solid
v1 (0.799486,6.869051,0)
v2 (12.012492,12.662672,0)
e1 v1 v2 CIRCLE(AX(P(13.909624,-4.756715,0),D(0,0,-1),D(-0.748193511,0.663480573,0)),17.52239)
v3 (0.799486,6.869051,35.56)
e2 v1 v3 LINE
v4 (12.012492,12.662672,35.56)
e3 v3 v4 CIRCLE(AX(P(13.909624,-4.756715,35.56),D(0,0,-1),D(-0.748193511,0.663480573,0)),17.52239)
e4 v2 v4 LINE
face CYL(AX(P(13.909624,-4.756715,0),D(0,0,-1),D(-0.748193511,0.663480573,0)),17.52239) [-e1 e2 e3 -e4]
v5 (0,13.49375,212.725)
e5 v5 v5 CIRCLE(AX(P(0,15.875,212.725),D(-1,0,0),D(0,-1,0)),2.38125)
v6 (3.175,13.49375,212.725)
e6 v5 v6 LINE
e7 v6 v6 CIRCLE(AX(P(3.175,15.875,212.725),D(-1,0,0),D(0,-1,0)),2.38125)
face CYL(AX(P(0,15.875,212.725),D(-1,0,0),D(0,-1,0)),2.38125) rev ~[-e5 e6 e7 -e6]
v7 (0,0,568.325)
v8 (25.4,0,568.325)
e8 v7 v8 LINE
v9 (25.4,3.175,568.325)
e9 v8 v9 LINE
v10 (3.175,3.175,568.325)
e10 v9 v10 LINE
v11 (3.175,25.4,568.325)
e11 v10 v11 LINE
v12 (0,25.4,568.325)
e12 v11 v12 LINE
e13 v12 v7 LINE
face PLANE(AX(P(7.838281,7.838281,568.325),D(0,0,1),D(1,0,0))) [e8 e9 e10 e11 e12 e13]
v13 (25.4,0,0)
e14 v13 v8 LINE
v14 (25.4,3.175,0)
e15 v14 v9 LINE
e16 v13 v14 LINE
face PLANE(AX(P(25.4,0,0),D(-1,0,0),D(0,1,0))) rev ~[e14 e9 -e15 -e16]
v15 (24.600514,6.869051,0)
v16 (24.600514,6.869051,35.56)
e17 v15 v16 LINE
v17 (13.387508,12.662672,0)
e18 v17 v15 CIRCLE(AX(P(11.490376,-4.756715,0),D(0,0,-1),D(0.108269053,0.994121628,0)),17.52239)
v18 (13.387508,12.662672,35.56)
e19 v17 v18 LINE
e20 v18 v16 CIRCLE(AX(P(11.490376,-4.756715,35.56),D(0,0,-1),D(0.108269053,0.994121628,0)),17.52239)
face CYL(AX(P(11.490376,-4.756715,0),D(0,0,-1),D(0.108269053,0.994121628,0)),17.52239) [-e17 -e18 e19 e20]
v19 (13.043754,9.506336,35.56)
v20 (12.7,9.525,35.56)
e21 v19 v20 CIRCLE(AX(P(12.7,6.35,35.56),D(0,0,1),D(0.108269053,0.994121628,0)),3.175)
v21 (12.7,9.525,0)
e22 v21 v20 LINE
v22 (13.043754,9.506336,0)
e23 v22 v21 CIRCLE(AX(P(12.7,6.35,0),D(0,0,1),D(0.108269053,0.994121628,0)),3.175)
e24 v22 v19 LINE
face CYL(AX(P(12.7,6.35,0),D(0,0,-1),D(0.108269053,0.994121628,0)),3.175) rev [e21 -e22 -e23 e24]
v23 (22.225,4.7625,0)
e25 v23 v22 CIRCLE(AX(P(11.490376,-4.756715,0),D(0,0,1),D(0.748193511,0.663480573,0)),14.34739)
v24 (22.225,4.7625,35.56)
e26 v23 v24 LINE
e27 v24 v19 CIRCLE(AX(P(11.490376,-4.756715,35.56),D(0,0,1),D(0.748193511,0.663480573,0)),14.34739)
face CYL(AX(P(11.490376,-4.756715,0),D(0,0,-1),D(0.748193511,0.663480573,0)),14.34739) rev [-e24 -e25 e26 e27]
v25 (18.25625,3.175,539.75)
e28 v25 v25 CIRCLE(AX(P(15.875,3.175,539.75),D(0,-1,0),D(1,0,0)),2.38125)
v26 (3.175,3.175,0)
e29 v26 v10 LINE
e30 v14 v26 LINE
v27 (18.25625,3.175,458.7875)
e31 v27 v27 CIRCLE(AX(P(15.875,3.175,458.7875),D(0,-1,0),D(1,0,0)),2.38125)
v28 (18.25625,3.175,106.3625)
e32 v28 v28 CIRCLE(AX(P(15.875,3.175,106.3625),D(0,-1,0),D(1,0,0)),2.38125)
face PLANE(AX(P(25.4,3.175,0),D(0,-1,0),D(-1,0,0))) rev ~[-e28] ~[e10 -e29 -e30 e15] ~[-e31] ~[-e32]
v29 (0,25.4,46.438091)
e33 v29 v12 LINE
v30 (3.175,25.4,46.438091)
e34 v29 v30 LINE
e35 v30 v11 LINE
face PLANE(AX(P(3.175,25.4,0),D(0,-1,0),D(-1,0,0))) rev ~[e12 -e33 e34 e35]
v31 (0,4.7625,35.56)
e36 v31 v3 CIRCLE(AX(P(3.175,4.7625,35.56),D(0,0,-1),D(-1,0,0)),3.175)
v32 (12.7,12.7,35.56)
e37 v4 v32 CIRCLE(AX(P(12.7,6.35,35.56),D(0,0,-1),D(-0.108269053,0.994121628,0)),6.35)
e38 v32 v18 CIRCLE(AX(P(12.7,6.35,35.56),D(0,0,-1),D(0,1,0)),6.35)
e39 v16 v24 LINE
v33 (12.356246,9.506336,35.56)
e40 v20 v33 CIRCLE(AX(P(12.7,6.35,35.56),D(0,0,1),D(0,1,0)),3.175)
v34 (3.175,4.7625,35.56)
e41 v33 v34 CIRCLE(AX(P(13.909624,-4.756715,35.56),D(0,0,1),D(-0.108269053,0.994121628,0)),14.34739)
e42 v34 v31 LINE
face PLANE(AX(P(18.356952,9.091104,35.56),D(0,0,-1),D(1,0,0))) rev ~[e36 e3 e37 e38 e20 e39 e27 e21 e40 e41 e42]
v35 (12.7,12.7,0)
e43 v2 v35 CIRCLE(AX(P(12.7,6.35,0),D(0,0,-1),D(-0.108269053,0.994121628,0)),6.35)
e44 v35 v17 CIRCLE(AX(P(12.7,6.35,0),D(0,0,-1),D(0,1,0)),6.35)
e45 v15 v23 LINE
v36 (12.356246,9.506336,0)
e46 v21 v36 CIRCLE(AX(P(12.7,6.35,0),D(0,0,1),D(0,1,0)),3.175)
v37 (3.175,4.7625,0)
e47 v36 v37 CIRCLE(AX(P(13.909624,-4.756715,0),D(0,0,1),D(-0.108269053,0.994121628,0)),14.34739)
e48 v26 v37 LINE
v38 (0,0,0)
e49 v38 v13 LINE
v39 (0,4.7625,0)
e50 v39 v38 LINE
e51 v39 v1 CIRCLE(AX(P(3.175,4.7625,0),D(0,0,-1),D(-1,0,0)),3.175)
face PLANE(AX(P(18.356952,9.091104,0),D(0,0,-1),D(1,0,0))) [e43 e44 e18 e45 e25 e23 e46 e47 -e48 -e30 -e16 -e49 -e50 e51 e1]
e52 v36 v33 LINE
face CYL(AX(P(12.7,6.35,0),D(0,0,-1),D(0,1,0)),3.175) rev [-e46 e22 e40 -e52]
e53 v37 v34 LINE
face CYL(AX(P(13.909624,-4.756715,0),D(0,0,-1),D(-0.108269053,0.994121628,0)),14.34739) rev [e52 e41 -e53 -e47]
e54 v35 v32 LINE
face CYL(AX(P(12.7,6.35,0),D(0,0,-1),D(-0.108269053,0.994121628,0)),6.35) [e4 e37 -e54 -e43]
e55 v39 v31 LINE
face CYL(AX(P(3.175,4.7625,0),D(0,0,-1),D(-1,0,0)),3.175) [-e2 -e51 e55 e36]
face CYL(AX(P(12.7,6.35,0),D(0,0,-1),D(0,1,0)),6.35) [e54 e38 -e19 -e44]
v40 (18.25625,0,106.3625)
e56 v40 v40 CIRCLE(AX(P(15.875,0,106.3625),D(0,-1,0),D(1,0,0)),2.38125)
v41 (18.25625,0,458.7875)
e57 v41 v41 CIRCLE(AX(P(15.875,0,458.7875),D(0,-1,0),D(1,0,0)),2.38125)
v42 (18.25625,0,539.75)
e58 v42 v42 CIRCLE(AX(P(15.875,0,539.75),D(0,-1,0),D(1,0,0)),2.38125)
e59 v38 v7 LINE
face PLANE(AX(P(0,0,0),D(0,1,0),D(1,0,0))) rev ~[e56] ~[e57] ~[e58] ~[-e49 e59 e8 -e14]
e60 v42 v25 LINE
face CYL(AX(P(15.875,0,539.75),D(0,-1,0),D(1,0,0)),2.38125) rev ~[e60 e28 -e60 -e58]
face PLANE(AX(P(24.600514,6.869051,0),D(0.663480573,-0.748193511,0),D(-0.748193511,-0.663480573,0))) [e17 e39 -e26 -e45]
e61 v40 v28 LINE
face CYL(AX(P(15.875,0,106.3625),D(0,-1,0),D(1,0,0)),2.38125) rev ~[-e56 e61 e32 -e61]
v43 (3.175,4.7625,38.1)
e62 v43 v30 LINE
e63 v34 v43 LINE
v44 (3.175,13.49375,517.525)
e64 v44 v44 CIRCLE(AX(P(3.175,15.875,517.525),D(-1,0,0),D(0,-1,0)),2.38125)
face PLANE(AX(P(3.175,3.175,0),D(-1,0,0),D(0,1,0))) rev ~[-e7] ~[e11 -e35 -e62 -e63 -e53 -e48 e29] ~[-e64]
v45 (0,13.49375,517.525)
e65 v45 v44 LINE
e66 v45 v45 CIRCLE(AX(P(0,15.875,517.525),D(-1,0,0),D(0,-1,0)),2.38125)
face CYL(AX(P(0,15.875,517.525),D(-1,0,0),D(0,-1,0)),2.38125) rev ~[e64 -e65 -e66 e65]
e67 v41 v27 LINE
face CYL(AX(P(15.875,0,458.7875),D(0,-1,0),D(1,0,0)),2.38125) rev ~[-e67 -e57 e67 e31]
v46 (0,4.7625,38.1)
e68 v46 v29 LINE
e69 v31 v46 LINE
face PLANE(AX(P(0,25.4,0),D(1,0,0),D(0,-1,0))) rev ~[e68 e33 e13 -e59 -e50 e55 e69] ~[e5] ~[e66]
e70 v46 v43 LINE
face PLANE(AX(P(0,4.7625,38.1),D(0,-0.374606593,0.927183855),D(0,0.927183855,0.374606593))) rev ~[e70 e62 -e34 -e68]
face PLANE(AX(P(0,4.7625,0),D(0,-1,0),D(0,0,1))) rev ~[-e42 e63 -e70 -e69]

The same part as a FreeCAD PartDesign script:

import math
import FreeCAD as App
import Part
import Sketcher
from FreeCAD import Vector
Q = App.Units.Quantity


def add_polygon(sketch, points):
    """Adds a closed chain of lines whose ends are joined by coincident constraints."""
    first, n = sketch.GeometryCount, len(points)
    for a, b in zip(points, points[1:] + points[:1]):
        sketch.addGeometry(Part.LineSegment(App.Vector(*a, 0), App.Vector(*b, 0)), False)
    for i in range(n):
        sketch.addConstraint(Sketcher.Constraint("Coincident", first + i, 2, first + (i + 1) % n, 1))

doc = App.newDocument("Part")
body = doc.addObject("PartDesign::Body", "Body")

# Sketch on XY plane
sketch1 = body.newObject("Sketcher::SketchObject", "Sketch")
sketch1.AttachmentSupport = (doc.getObject("XY_Plane"), [""])
sketch1.MapMode = "FlatFace"
add_polygon(sketch1, [(0, 25.4), (0, 0), (25.4, 0), (25.4, 3.2), (3.2, 3.2), (3.2, 25.4)])  # lines 0-5
sketch1.addConstraint(Sketcher.Constraint("Vertical", 0))
sketch1.addConstraint(Sketcher.Constraint("Horizontal", 1))
sketch1.addConstraint(Sketcher.Constraint("Vertical", 2))
sketch1.addConstraint(Sketcher.Constraint("Horizontal", 3))
sketch1.addConstraint(Sketcher.Constraint("Vertical", 4))
sketch1.addConstraint(Sketcher.Constraint("Horizontal", 5))
sketch1.addConstraint(Sketcher.Constraint("Coincident", 0, 2, -1, 1))
sketch1.addConstraint(Sketcher.Constraint("Equal", 1, 0))
sketch1.addConstraint(Sketcher.Constraint("Equal", 5, 2))
sketch1.addConstraint(Sketcher.Constraint("DistanceX", 1, 1, 1, 2, Q("1 in")))
sketch1.addConstraint(Sketcher.Constraint("DistanceX", 3, 2, 3, 1, Q("0.875 in")))
pad1 = body.newObject("PartDesign::Pad", "Pad")
pad1.Profile = sketch1
pad1.Length = Q("22.375 in")

# Sketch on YZ plane
sketch2 = body.newObject("Sketcher::SketchObject", "Sketch001")
sketch2.AttachmentSupport = (doc.getObject("YZ_Plane"), [""])
sketch2.MapMode = "FlatFace"
sketch2.addGeometry(Part.Circle(Vector(15.9, 517.5, 0), Vector(0, 0, 1), 2.4), False)
sketch2.addGeometry(Part.Circle(Vector(15.9, 212.7, 0), Vector(0, 0, 1), 2.4), False)
sketch2.addConstraint(Sketcher.Constraint("Equal", 0, 1))
sketch2.addConstraint(Sketcher.Constraint("Vertical", 0, 3, 1, 3))
sketch2.addConstraint(Sketcher.Constraint("Diameter", 0, Q("0.1875 in")))
sketch2.addConstraint(Sketcher.Constraint("DistanceY", 1, 3, 0, 3, Q("12 in")))
sketch2.addConstraint(Sketcher.Constraint("DistanceX", -1, 1, 0, 3, Q("0.625 in")))
sketch2.addConstraint(Sketcher.Constraint("DistanceY", -1, 1, 0, 3, Q("20.375 in")))
pocket1 = body.newObject("PartDesign::Pocket", "Pocket")
pocket1.Profile = sketch2
pocket1.Length = Q("0.125 in")
pocket1.Reversed = True

# Sketch on XZ plane
sketch3 = body.newObject("Sketcher::SketchObject", "Sketch002")
sketch3.AttachmentSupport = (doc.getObject("XZ_Plane"), [""])
sketch3.MapMode = "FlatFace"
sketch3.addGeometry(Part.Circle(Vector(15.9, 458.8, 0), Vector(0, 0, 1), 2.4), False)
sketch3.addGeometry(Part.Circle(Vector(15.9, 106.4, 0), Vector(0, 0, 1), 2.4), False)
sketch3.addGeometry(Part.Circle(Vector(15.9, 539.8, 0), Vector(0, 0, 1), 2.4), False)
sketch3.addConstraint(Sketcher.Constraint("Equal", 0, 1))
sketch3.addConstraint(Sketcher.Constraint("Equal", 1, 2))
sketch3.addConstraint(Sketcher.Constraint("Vertical", 0, 3, 1, 3))
sketch3.addConstraint(Sketcher.Constraint("Vertical", 1, 3, 2, 3))
sketch3.addConstraint(Sketcher.Constraint("Diameter", 0, Q("0.1875 in")))
sketch3.addConstraint(Sketcher.Constraint("DistanceY", -1, 1, 2, 3, Q("21.25 in")))
sketch3.addConstraint(Sketcher.Constraint("DistanceX", -1, 1, 0, 3, Q("0.625 in")))
sketch3.addConstraint(Sketcher.Constraint("DistanceY", -1, 1, 0, 3, Q("18.0625 in")))
sketch3.addConstraint(Sketcher.Constraint("DistanceY", -1, 1, 1, 3, Q("4.1875 in")))
pocket2 = body.newObject("PartDesign::Pocket", "Pocket001")
pocket2.Profile = sketch3
pocket2.Length = Q("0.125 in")

# Sketch on YZ plane
sketch4 = body.newObject("Sketcher::SketchObject", "Sketch003")
sketch4.AttachmentSupport = (doc.getObject("YZ_Plane"), [""])
sketch4.MapMode = "FlatFace"
add_polygon(sketch4, [(25, 0), (5, 0), (5, 38), (25, 46)])  # lines 0-3
sketch4.addConstraint(Sketcher.Constraint("Horizontal", 0))
sketch4.addConstraint(Sketcher.Constraint("Vertical", 1))
sketch4.addConstraint(Sketcher.Constraint("Vertical", 3))
sketch4.addConstraint(Sketcher.Constraint("PointOnObject", 0, 2, -1))
sketch4.addConstraint(Sketcher.Constraint("DistanceY", 1, 1, 1, 2, Q("1.5 in")))
sketch4.addConstraint(Sketcher.Constraint("DistanceX", -1, 1, 2, 2, Q("1 in")))
sketch4.addConstraint(Sketcher.Constraint("Angle", 2, Q("22 deg")))
sketch4.addConstraint(Sketcher.Constraint("DistanceX", 0, 2, 0, 1, Q("0.8125 in")))
pocket3 = body.newObject("PartDesign::Pocket", "Pocket002")
pocket3.Profile = sketch4
pocket3.Length = Q("0.125 in")
pocket3.Reversed = True

# Sketch on XY plane
sketch5 = body.newObject("Sketcher::SketchObject", "Sketch004")
sketch5.AttachmentSupport = (doc.getObject("XY_Plane"), [""])
sketch5.MapMode = "FlatFace"
sketch5.addGeometry(Part.ArcOfCircle(Part.Circle(Vector(12.7, 6.35, 0), Vector(0, 0, 1), 3.18), math.radians(83.78), math.radians(90)), False)
sketch5.addGeometry(Part.ArcOfCircle(Part.Circle(Vector(12.7, 6.35, 0), Vector(0, 0, 1), 3.18), math.radians(90), math.radians(96.22)), False)
sketch5.addGeometry(Part.ArcOfCircle(Part.Circle(Vector(13.91, -4.76, 0), Vector(0, 0, 1), 14.35), math.radians(96), math.radians(138)), False)
sketch5.addGeometry(Part.LineSegment(Vector(3.17, 4.76, 0), Vector(0, 4.76, 0)), False)
sketch5.addGeometry(Part.ArcOfCircle(Part.Circle(Vector(3.17, 4.76, 0), Vector(0, 0, 1), 3.17), math.radians(138), math.radians(180)), False)
sketch5.addGeometry(Part.ArcOfCircle(Part.Circle(Vector(13.91, -4.76, 0), Vector(0, 0, 1), 17.52), math.radians(96), math.radians(138)), False)
sketch5.addGeometry(Part.ArcOfCircle(Part.Circle(Vector(12.7, 6.35, 0), Vector(0, 0, 1), 6.35), math.radians(90), math.radians(96.22)), False)
sketch5.addGeometry(Part.ArcOfCircle(Part.Circle(Vector(12.7, 6.35, 0), Vector(0, 0, 1), 6.35), math.radians(83.78), math.radians(90)), False)
sketch5.addGeometry(Part.ArcOfCircle(Part.Circle(Vector(11.49, -4.76, 0), Vector(0, 0, 1), 17.52), math.radians(42), math.radians(84)), False)
sketch5.addGeometry(Part.LineSegment(Vector(24.6, 6.87, 0), Vector(22.23, 4.76, 0)), False)
sketch5.addGeometry(Part.ArcOfCircle(Part.Circle(Vector(11.49, -4.76, 0), Vector(0, 0, 1), 14.35), math.radians(42), math.radians(84)), False)
sketch5.addConstraint(Sketcher.Constraint("Tangent", 0, 2, 1, 1))
sketch5.addConstraint(Sketcher.Constraint("Tangent", 1, 2, 2, 1))
sketch5.addConstraint(Sketcher.Constraint("Coincident", 2, 2, 3, 1))
sketch5.addConstraint(Sketcher.Constraint("Coincident", 3, 2, 4, 2))
sketch5.addConstraint(Sketcher.Constraint("Tangent", 4, 1, 5, 2))
sketch5.addConstraint(Sketcher.Constraint("Tangent", 5, 1, 6, 2))
sketch5.addConstraint(Sketcher.Constraint("Tangent", 6, 1, 7, 2))
sketch5.addConstraint(Sketcher.Constraint("Tangent", 7, 1, 8, 2))
sketch5.addConstraint(Sketcher.Constraint("Coincident", 8, 1, 9, 1))
sketch5.addConstraint(Sketcher.Constraint("Coincident", 9, 2, 10, 1))
sketch5.addConstraint(Sketcher.Constraint("Tangent", 10, 2, 0, 1))
sketch5.addConstraint(Sketcher.Constraint("Horizontal", 3))
sketch5.addConstraint(Sketcher.Constraint("Coincident", 5, 3, 2, 3))
sketch5.addConstraint(Sketcher.Constraint("Coincident", 6, 3, 0, 3))
sketch5.addConstraint(Sketcher.Constraint("Coincident", 10, 3, 8, 3))
sketch5.addConstraint(Sketcher.Constraint("Coincident", 2, 2, 4, 3))
sketch5.addConstraint(Sketcher.Constraint("Equal", 0, 1))
sketch5.addConstraint(Sketcher.Constraint("Equal", 1, 4))
sketch5.addConstraint(Sketcher.Constraint("Equal", 6, 7))
sketch5.addConstraint(Sketcher.Constraint("Equal", 5, 8))
sketch5.addConstraint(Sketcher.Constraint("PointOnObject", 3, 2, -2))
sketch5.addConstraint(Sketcher.Constraint("Horizontal", 5, 3, 8, 3))
sketch5.addConstraint(Sketcher.Constraint("Horizontal", 4, 1, 8, 1))
sketch5.addConstraint(Sketcher.Constraint("Horizontal", 3, 2, 9, 2))
sketch5.addConstraint(Sketcher.Constraint("Vertical", 7, 3, 0, 2))
sketch5.addConstraint(Sketcher.Constraint("Vertical", 0, 2, 6, 1))
sketch5.addConstraint(Sketcher.Constraint("Radius", 6, Q("0.25 in")))
sketch5.addConstraint(Sketcher.Constraint("DistanceX", -1, 1, 0, 3, Q("0.5 in")))
sketch5.addConstraint(Sketcher.Constraint("DistanceY", -1, 1, 6, 1, Q("0.5 in")))
sketch5.addConstraint(Sketcher.Constraint("DistanceY", -1, 1, 4, 3, Q("0.1875 in")))
sketch5.addConstraint(Sketcher.Constraint("Radius", 2, 14.34739))
pad2 = body.newObject("PartDesign::Pad", "Pad001")
pad2.Profile = sketch5
pad2.Length = Q("1.4 in")

doc.recompute()
